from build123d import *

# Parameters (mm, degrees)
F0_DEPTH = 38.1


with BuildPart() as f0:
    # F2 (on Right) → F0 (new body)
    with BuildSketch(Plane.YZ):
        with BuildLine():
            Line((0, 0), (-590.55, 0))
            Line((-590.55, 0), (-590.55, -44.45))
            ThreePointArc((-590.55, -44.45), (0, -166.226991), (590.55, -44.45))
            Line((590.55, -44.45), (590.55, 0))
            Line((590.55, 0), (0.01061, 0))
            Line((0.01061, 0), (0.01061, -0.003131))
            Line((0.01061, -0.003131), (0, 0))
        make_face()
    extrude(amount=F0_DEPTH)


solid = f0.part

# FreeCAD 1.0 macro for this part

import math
import FreeCAD as App
import Part
import Sketcher

V = App.Vector
Q = App.Units.Quantity

doc = App.newDocument("Part")
body = doc.addObject("PartDesign::Body", "Body")

# Sketch on YZ plane
sketch1 = doc.addObject("Sketcher::SketchObject", "Sketch")
body.addObject(sketch1)
sketch1.AttachmentSupport = (doc.YZ_Plane, [""])
sketch1.MapMode = "FlatFace"
sketch1.addGeometry([
    Part.LineSegment(V(0, 0, 0), V(-590.55, 0, 0)),  # 0
    Part.LineSegment(V(-590.55, 0, 0), V(-590.55, -44.45, 0)),  # 1
    Part.ArcOfCircle(Part.Circle(V(0, 1326.579388, 0), V(0, 0, 1), 1492.806379), math.radians(-113.303224), math.radians(-66.696776)),  # 2
    Part.LineSegment(V(590.55, -44.45, 0), V(590.55, 0, 0)),  # 3
    Part.LineSegment(V(590.55, 0, 0), V(0.01061, 0, 0)),  # 4
    Part.LineSegment(V(0.01061, 0, 0), V(0.01061, -0.003131, 0)),  # 5
    Part.LineSegment(V(0.01061, -0.003131, 0), V(0, 0, 0)),  # 6
], False)
sketch1.addConstraint([
    Sketcher.Constraint("Coincident", 0, 2, 1, 1),
    Sketcher.Constraint("Coincident", 1, 2, 2, 1),
    Sketcher.Constraint("Coincident", 2, 2, 3, 1),
    Sketcher.Constraint("Coincident", 3, 2, 4, 1),
    Sketcher.Constraint("Coincident", 4, 2, 5, 1),
    Sketcher.Constraint("Coincident", 5, 2, 6, 1),
    Sketcher.Constraint("Coincident", 6, 2, 0, 1),
    Sketcher.Constraint("Horizontal", 0),
    Sketcher.Constraint("Vertical", 1),
    Sketcher.Constraint("Vertical", 3),
    Sketcher.Constraint("Horizontal", 4),
    Sketcher.Constraint("Vertical", 5),
    Sketcher.Constraint("Coincident", 6, 2, -1, 1),
    Sketcher.Constraint("Symmetric", 0, 2, 3, 2, -1, 1),
    Sketcher.Constraint("PointOnObject", 2, 3, -2),
    Sketcher.Constraint("DistanceX", 0, 2, 0, 1, Q("23.25 in")),
    Sketcher.Constraint("DistanceY", 1, 2, 1, 1, Q("1.75 in")),
    Sketcher.Constraint("Radius", 2, 1492.806379),
    Sketcher.Constraint("DistanceX", 4, 2, 4, 1, 590.53939),
    Sketcher.Constraint("DistanceY", 5, 2, 5, 1, 0.003131),
])
pad1 = doc.addObject("PartDesign::Pad", "Pad")
body.addObject(pad1)
pad1.Profile = sketch1
pad1.Length = Q("1.5 in")

doc.recompute()
